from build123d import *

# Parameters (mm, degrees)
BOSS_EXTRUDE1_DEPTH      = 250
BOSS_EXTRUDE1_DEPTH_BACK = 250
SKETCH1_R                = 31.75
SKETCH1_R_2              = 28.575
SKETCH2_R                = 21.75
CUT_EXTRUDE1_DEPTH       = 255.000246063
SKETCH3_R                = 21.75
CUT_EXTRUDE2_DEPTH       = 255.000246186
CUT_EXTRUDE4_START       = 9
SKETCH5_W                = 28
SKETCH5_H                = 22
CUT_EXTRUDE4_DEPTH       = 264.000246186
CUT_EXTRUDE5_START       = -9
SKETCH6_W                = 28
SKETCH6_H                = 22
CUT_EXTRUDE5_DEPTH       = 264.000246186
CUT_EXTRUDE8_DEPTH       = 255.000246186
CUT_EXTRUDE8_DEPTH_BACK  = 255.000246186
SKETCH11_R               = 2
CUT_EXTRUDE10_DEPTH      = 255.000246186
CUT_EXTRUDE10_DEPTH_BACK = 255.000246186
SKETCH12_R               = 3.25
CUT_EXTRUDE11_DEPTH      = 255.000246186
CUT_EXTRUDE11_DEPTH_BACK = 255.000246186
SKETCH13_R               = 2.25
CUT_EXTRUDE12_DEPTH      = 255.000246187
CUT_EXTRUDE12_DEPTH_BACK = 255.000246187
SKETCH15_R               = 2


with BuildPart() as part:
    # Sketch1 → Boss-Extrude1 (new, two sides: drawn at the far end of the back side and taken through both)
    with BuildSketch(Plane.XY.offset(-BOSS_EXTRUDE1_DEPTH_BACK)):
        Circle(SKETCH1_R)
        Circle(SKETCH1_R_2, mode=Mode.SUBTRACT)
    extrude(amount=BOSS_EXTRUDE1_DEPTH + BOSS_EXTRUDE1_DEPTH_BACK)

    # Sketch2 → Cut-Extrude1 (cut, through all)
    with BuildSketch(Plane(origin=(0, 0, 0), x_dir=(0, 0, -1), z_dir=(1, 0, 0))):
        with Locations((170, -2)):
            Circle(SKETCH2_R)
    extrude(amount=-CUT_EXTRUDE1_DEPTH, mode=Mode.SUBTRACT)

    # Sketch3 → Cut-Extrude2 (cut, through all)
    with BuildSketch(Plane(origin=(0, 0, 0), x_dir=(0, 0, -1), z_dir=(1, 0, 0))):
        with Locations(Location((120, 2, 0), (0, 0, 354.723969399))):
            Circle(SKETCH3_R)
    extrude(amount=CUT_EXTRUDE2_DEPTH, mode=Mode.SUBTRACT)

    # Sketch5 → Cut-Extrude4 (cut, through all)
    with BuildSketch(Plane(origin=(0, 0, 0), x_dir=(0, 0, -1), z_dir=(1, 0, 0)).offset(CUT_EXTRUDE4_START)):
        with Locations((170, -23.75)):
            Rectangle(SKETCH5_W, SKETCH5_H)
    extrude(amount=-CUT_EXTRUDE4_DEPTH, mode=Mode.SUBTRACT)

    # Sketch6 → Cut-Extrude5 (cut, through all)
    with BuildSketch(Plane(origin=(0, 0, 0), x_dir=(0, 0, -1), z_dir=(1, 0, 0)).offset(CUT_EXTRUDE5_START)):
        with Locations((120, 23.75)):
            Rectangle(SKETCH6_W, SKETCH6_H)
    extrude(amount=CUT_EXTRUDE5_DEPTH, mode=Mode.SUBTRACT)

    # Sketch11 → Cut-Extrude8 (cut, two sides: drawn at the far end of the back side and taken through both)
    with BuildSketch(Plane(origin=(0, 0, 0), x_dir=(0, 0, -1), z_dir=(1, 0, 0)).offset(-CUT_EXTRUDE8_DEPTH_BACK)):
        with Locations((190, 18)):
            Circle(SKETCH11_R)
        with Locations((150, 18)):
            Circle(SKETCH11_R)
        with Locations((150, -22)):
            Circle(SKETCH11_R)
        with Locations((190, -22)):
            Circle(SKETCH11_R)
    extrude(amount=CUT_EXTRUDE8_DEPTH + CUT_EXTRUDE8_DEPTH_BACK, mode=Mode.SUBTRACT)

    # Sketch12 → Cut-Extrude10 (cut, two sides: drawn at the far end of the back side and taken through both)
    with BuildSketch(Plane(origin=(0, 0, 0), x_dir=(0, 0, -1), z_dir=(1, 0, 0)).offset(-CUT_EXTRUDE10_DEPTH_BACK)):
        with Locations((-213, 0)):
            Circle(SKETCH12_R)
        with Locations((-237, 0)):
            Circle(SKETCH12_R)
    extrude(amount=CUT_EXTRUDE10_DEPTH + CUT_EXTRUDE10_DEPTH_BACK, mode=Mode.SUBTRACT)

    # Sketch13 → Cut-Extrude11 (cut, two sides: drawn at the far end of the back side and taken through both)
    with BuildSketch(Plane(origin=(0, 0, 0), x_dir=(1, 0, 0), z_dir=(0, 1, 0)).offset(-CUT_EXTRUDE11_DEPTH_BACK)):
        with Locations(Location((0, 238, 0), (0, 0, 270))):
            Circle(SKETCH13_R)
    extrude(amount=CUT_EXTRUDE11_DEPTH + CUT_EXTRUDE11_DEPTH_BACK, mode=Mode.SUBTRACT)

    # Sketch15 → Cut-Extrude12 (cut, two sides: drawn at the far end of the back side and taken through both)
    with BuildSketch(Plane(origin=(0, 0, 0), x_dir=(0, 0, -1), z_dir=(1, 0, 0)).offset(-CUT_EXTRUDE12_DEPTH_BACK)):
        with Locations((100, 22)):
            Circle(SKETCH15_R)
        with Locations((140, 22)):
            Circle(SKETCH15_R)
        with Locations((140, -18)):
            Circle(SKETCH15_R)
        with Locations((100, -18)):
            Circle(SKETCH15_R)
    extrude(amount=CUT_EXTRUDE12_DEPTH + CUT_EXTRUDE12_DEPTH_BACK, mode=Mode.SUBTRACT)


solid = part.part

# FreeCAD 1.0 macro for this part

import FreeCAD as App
import Part
import Sketcher

doc = App.newDocument("Part")
body = doc.addObject("PartDesign::Body", "Body")

sketch1 = body.newObject("Sketcher::SketchObject", "Sketch")
sketch1.AttachmentSupport = (doc.getObject("XY_Plane"), [""])
sketch1.MapMode = "FlatFace"
sketch1.addGeometry(Part.Circle(App.Vector(0, 0, 0), App.Vector(0, 0, 1), 32), False)
sketch1.addGeometry(Part.Circle(App.Vector(0, 0, 0), App.Vector(0, 0, 1), 29), False)
sketch1.addConstraint(Sketcher.Constraint("Coincident", 0, 3, -1, 1))
sketch1.addConstraint(Sketcher.Constraint("Coincident", 1, 3, -1, 1))
sketch1.addConstraint(Sketcher.Constraint("Diameter", 0, 63.5))
sketch1.addConstraint(Sketcher.Constraint("Diameter", 1, 57.15))
pad1 = body.newObject("PartDesign::Pad", "Pad")
pad1.Profile = sketch1
pad1.Type = "TwoLengths"
pad1.Length = 250
pad1.Length2 = 250

sketch2 = body.newObject("Sketcher::SketchObject", "Sketch001")
sketch2.AttachmentSupport = (doc.getObject("YZ_Plane"), [""])
sketch2.MapMode = "FlatFace"
sketch2.addGeometry(Part.Circle(App.Vector(-2, -170, 0), App.Vector(0, 0, 1), 22), False)
sketch2.addConstraint(Sketcher.Constraint("Diameter", 0, 43.5))
sketch2.addConstraint(Sketcher.Constraint("DistanceX", 0, 3, -1, 1, 2.0))
sketch2.addConstraint(Sketcher.Constraint("DistanceY", 0, 3, -1, 1, 170.0))
pocket1 = body.newObject("PartDesign::Pocket", "Pocket")
pocket1.Profile = sketch2
pocket1.Type = "ThroughAll"

sketch3 = body.newObject("Sketcher::SketchObject", "Sketch002")
sketch3.AttachmentSupport = (doc.getObject("YZ_Plane"), [""])
sketch3.MapMode = "FlatFace"
sketch3.addGeometry(Part.Circle(App.Vector(2, -120, 0), App.Vector(0, 0, 1), 22), False)
sketch3.addConstraint(Sketcher.Constraint("Diameter", 0, 43.5))
sketch3.addConstraint(Sketcher.Constraint("DistanceX", -1, 1, 0, 3, 2.0))
sketch3.addConstraint(Sketcher.Constraint("DistanceY", 0, 3, -1, 1, 120.0))
pocket2 = body.newObject("PartDesign::Pocket", "Pocket001")
pocket2.Profile = sketch3
pocket2.Type = "ThroughAll"
pocket2.Reversed = True

sketch4 = body.newObject("Sketcher::SketchObject", "Sketch003")
sketch4.AttachmentSupport = (doc.getObject("YZ_Plane"), [""])
sketch4.MapMode = "FlatFace"
sketch4.AttachmentOffset = App.Placement(App.Vector(0, 0, 9), App.Rotation())
sketch4.addGeometry(Part.LineSegment(App.Vector(-13, -156, 0), App.Vector(-35, -156, 0)), False)
sketch4.addGeometry(Part.LineSegment(App.Vector(-35, -156, 0), App.Vector(-35, -184, 0)), False)
sketch4.addGeometry(Part.LineSegment(App.Vector(-35, -184, 0), App.Vector(-13, -184, 0)), False)
sketch4.addGeometry(Part.LineSegment(App.Vector(-13, -184, 0), App.Vector(-13, -156, 0)), False)
sketch4.addConstraint(Sketcher.Constraint("Coincident", 0, 2, 1, 1))
sketch4.addConstraint(Sketcher.Constraint("Coincident", 1, 2, 2, 1))
sketch4.addConstraint(Sketcher.Constraint("Coincident", 2, 2, 3, 1))
sketch4.addConstraint(Sketcher.Constraint("Coincident", 3, 2, 0, 1))
sketch4.addConstraint(Sketcher.Constraint("Horizontal", 0))
sketch4.addConstraint(Sketcher.Constraint("Vertical", 1))
sketch4.addConstraint(Sketcher.Constraint("Horizontal", 2))
sketch4.addConstraint(Sketcher.Constraint("Vertical", 3))
sketch4.addConstraint(Sketcher.Constraint("DistanceX", 0, 2, 0, 1, 22.0))
sketch4.addConstraint(Sketcher.Constraint("DistanceY", 1, 2, 1, 1, 28.0))
sketch4.addConstraint(Sketcher.Constraint("DistanceY", 0, 2, -1, 1, 156.0))
sketch4.addConstraint(Sketcher.Constraint("DistanceX", 0, 2, -1, 1, 34.75))
pocket3 = body.newObject("PartDesign::Pocket", "Pocket002")
pocket3.Profile = sketch4
pocket3.Type = "ThroughAll"

sketch5 = body.newObject("Sketcher::SketchObject", "Sketch004")
sketch5.AttachmentSupport = (doc.getObject("YZ_Plane"), [""])
sketch5.MapMode = "FlatFace"
sketch5.AttachmentOffset = App.Placement(App.Vector(0, 0, -9), App.Rotation())
sketch5.addGeometry(Part.LineSegment(App.Vector(35, -106, 0), App.Vector(13, -106, 0)), False)
sketch5.addGeometry(Part.LineSegment(App.Vector(13, -106, 0), App.Vector(13, -134, 0)), False)
sketch5.addGeometry(Part.LineSegment(App.Vector(13, -134, 0), App.Vector(35, -134, 0)), False)
sketch5.addGeometry(Part.LineSegment(App.Vector(35, -134, 0), App.Vector(35, -106, 0)), False)
sketch5.addConstraint(Sketcher.Constraint("Coincident", 0, 2, 1, 1))
sketch5.addConstraint(Sketcher.Constraint("Coincident", 1, 2, 2, 1))
sketch5.addConstraint(Sketcher.Constraint("Coincident", 2, 2, 3, 1))
sketch5.addConstraint(Sketcher.Constraint("Coincident", 3, 2, 0, 1))
sketch5.addConstraint(Sketcher.Constraint("Horizontal", 0))
sketch5.addConstraint(Sketcher.Constraint("Vertical", 1))
sketch5.addConstraint(Sketcher.Constraint("Horizontal", 2))
sketch5.addConstraint(Sketcher.Constraint("Vertical", 3))
sketch5.addConstraint(Sketcher.Constraint("DistanceX", 0, 2, 0, 1, 22.0))
sketch5.addConstraint(Sketcher.Constraint("DistanceY", 1, 2, 1, 1, 28.0))
sketch5.addConstraint(Sketcher.Constraint("DistanceY", 0, 2, -1, 1, 106.0))
sketch5.addConstraint(Sketcher.Constraint("DistanceX", -1, 1, 0, 2, 12.75))
pocket4 = body.newObject("PartDesign::Pocket", "Pocket003")
pocket4.Profile = sketch5
pocket4.Type = "ThroughAll"
pocket4.Reversed = True

sketch6 = body.newObject("Sketcher::SketchObject", "Sketch005")
sketch6.AttachmentSupport = (doc.getObject("YZ_Plane"), [""])
sketch6.MapMode = "FlatFace"
sketch6.addGeometry(Part.Circle(App.Vector(18, -190, 0), App.Vector(0, 0, 1), 2), False)
sketch6.addGeometry(Part.Circle(App.Vector(18, -150, 0), App.Vector(0, 0, 1), 2), False)
sketch6.addGeometry(Part.Circle(App.Vector(-22, -150, 0), App.Vector(0, 0, 1), 2), False)
sketch6.addGeometry(Part.Circle(App.Vector(-22, -190, 0), App.Vector(0, 0, 1), 2), False)
sketch6.addConstraint(Sketcher.Constraint("Equal", 0, 1))
sketch6.addConstraint(Sketcher.Constraint("Equal", 1, 2))
sketch6.addConstraint(Sketcher.Constraint("Equal", 2, 3))
sketch6.addConstraint(Sketcher.Constraint("Horizontal", 1, 3, 2, 3))
sketch6.addConstraint(Sketcher.Constraint("Horizontal", 0, 3, 3, 3))
sketch6.addConstraint(Sketcher.Constraint("Vertical", 0, 3, 1, 3))
sketch6.addConstraint(Sketcher.Constraint("Vertical", 2, 3, 3, 3))
sketch6.addConstraint(Sketcher.Constraint("Diameter", 0, 4.0))
sketch6.addConstraint(Sketcher.Constraint("DistanceX", -1, 1, 0, 3, 18.0))
sketch6.addConstraint(Sketcher.Constraint("DistanceY", 0, 3, -1, 1, 190.0))
sketch6.addConstraint(Sketcher.Constraint("DistanceY", 1, 3, -1, 1, 150.0))
sketch6.addConstraint(Sketcher.Constraint("DistanceX", 2, 3, -1, 1, 22.0))
pocket5 = body.newObject("PartDesign::Pocket", "Pocket004")
pocket5.Profile = sketch6
pocket5.Type = "ThroughAll"
pocket5.Midplane = True

sketch7 = body.newObject("Sketcher::SketchObject", "Sketch006")
sketch7.AttachmentSupport = (doc.getObject("YZ_Plane"), [""])
sketch7.MapMode = "FlatFace"
sketch7.addGeometry(Part.Circle(App.Vector(0, 213, 0), App.Vector(0, 0, 1), 3.2), False)
sketch7.addGeometry(Part.Circle(App.Vector(0, 237, 0), App.Vector(0, 0, 1), 3.2), False)
sketch7.addConstraint(Sketcher.Constraint("Equal", 0, 1))
sketch7.addConstraint(Sketcher.Constraint("PointOnObject", 0, 3, -2))
sketch7.addConstraint(Sketcher.Constraint("PointOnObject", 1, 3, -2))
sketch7.addConstraint(Sketcher.Constraint("Diameter", 0, 6.5))
sketch7.addConstraint(Sketcher.Constraint("DistanceY", -1, 1, 0, 3, 213.0))
sketch7.addConstraint(Sketcher.Constraint("DistanceY", -1, 1, 1, 3, 237.0))
pocket6 = body.newObject("PartDesign::Pocket", "Pocket005")
pocket6.Profile = sketch7
pocket6.Type = "ThroughAll"
pocket6.Midplane = True

sketch8 = body.newObject("Sketcher::SketchObject", "Sketch007")
sketch8.AttachmentSupport = (doc.getObject("XZ_Plane"), [""])
sketch8.MapMode = "FlatFace"
sketch8.addGeometry(Part.Circle(App.Vector(0, -238, 0), App.Vector(0, 0, 1), 2.2), False)
sketch8.addConstraint(Sketcher.Constraint("PointOnObject", 0, 3, -2))
sketch8.addConstraint(Sketcher.Constraint("Diameter", 0, 4.5))
sketch8.addConstraint(Sketcher.Constraint("DistanceY", 0, 3, -1, 1, 238.0))
pocket7 = body.newObject("PartDesign::Pocket", "Pocket006")
pocket7.Profile = sketch8
pocket7.Type = "ThroughAll"
pocket7.Midplane = True

sketch9 = body.newObject("Sketcher::SketchObject", "Sketch008")
sketch9.AttachmentSupport = (doc.getObject("YZ_Plane"), [""])
sketch9.MapMode = "FlatFace"
sketch9.addGeometry(Part.Circle(App.Vector(22, -100, 0), App.Vector(0, 0, 1), 2), False)
sketch9.addGeometry(Part.Circle(App.Vector(22, -140, 0), App.Vector(0, 0, 1), 2), False)
sketch9.addGeometry(Part.Circle(App.Vector(-18, -140, 0), App.Vector(0, 0, 1), 2), False)
sketch9.addGeometry(Part.Circle(App.Vector(-18, -100, 0), App.Vector(0, 0, 1), 2), False)
sketch9.addConstraint(Sketcher.Constraint("Equal", 0, 1))
sketch9.addConstraint(Sketcher.Constraint("Equal", 1, 2))
sketch9.addConstraint(Sketcher.Constraint("Equal", 2, 3))
sketch9.addConstraint(Sketcher.Constraint("Horizontal", 1, 3, 2, 3))
sketch9.addConstraint(Sketcher.Constraint("Horizontal", 0, 3, 3, 3))
sketch9.addConstraint(Sketcher.Constraint("Vertical", 0, 3, 1, 3))
sketch9.addConstraint(Sketcher.Constraint("Vertical", 2, 3, 3, 3))
sketch9.addConstraint(Sketcher.Constraint("Diameter", 0, 4.0))
sketch9.addConstraint(Sketcher.Constraint("DistanceX", -1, 1, 0, 3, 22.0))
sketch9.addConstraint(Sketcher.Constraint("DistanceY", 0, 3, -1, 1, 100.0))
sketch9.addConstraint(Sketcher.Constraint("DistanceY", 1, 3, -1, 1, 140.0))
sketch9.addConstraint(Sketcher.Constraint("DistanceX", 2, 3, -1, 1, 18.0))
pocket8 = body.newObject("PartDesign::Pocket", "Pocket007")
pocket8.Profile = sketch9
pocket8.Type = "ThroughAll"
pocket8.Midplane = True

doc.recompute()
